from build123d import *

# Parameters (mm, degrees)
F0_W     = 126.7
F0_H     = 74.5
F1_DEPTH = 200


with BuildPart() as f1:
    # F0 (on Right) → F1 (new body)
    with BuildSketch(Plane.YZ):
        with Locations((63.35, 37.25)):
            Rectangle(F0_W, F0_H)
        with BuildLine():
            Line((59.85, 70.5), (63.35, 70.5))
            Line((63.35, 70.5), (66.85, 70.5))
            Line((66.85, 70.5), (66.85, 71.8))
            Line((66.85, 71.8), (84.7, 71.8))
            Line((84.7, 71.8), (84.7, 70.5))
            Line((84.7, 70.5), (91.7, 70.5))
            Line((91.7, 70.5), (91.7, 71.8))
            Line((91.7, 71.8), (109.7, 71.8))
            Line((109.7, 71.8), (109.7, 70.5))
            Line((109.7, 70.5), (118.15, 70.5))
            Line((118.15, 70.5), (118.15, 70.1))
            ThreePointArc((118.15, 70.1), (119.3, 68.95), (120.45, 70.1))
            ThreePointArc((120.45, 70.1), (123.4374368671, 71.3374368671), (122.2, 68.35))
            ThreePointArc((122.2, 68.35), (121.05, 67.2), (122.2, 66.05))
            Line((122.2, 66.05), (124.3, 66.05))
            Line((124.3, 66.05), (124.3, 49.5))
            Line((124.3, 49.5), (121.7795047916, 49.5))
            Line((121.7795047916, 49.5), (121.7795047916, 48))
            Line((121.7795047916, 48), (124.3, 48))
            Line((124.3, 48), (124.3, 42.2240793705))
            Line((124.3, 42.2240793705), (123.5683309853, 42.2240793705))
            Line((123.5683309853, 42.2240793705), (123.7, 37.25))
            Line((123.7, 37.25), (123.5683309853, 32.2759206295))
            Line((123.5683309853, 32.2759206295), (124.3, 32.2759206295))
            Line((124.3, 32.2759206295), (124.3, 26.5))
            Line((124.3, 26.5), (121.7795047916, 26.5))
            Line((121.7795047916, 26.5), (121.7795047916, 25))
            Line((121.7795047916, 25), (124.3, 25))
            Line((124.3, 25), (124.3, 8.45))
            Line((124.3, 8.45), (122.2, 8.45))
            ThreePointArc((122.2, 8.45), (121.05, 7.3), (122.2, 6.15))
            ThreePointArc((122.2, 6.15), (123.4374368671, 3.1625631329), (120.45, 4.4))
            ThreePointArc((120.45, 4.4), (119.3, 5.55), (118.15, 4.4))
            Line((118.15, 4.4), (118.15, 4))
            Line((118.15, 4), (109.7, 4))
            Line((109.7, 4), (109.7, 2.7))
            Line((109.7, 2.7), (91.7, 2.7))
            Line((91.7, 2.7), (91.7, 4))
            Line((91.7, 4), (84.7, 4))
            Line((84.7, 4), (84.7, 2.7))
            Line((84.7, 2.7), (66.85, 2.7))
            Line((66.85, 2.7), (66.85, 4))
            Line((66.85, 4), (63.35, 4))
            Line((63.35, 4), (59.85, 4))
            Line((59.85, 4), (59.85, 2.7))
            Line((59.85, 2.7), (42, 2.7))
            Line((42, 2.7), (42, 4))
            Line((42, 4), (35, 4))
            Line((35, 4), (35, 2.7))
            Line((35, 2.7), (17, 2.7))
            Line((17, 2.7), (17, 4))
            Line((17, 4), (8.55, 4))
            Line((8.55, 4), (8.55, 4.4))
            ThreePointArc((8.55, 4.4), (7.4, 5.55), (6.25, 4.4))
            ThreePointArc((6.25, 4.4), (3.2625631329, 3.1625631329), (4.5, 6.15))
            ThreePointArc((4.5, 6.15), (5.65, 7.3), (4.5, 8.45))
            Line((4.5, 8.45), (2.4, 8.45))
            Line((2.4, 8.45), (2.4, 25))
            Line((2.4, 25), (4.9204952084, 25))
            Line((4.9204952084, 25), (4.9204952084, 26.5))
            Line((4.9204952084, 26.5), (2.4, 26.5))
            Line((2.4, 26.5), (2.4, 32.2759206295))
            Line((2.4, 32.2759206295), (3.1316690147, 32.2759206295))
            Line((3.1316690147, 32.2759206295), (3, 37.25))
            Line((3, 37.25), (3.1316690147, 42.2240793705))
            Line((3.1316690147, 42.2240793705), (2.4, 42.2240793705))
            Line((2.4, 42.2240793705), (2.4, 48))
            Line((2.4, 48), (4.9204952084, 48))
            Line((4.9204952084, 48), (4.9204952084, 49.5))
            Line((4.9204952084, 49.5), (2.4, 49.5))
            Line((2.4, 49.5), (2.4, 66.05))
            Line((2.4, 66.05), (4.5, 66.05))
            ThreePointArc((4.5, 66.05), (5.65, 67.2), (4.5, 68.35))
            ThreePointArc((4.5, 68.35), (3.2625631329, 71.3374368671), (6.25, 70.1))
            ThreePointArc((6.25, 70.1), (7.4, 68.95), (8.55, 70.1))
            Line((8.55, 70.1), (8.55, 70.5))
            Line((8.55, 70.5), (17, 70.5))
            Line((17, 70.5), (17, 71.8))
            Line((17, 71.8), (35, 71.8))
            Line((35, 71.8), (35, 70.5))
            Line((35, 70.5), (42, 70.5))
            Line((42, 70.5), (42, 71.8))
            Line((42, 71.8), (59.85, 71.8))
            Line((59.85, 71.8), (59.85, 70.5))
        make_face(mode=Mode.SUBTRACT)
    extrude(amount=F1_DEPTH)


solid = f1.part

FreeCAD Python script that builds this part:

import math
import FreeCAD as App
import Part
import Sketcher


def add_polygon(sketch, points):
    """Adds a closed chain of lines whose ends are joined by coincident constraints."""
    first, n = sketch.GeometryCount, len(points)
    for a, b in zip(points, points[1:] + points[:1]):
        sketch.addGeometry(Part.LineSegment(App.Vector(*a, 0), App.Vector(*b, 0)), False)
    for i in range(n):
        sketch.addConstraint(Sketcher.Constraint("Coincident", first + i, 2, first + (i + 1) % n, 1))

doc = App.newDocument("Part")
body = doc.addObject("PartDesign::Body", "Body")

sketch1 = body.newObject("Sketcher::SketchObject", "Sketch")
sketch1.AttachmentSupport = (doc.getObject("YZ_Plane"), [""])
sketch1.MapMode = "FlatFace"
add_polygon(sketch1, [(0, 74.5), (0, 0), (126.7, 0), (126.7, 74.5)])
sketch1.addGeometry(Part.LineSegment(App.Vector(59.85, 71.8, 0), App.Vector(59.85, 70.5, 0)), False)
sketch1.addGeometry(Part.LineSegment(App.Vector(59.85, 70.5, 0), App.Vector(66.85, 70.5, 0)), False)
sketch1.addGeometry(Part.LineSegment(App.Vector(66.85, 70.5, 0), App.Vector(66.85, 71.8, 0)), False)
sketch1.addGeometry(Part.LineSegment(App.Vector(66.85, 71.8, 0), App.Vector(84.7, 71.8, 0)), False)
sketch1.addGeometry(Part.LineSegment(App.Vector(84.7, 71.8, 0), App.Vector(84.7, 70.5, 0)), False)
sketch1.addGeometry(Part.LineSegment(App.Vector(84.7, 70.5, 0), App.Vector(91.7, 70.5, 0)), False)
sketch1.addGeometry(Part.LineSegment(App.Vector(91.7, 70.5, 0), App.Vector(91.7, 71.8, 0)), False)
sketch1.addGeometry(Part.LineSegment(App.Vector(91.7, 71.8, 0), App.Vector(109.7, 71.8, 0)), False)
sketch1.addGeometry(Part.LineSegment(App.Vector(109.7, 71.8, 0), App.Vector(109.7, 70.5, 0)), False)
sketch1.addGeometry(Part.LineSegment(App.Vector(109.7, 70.5, 0), App.Vector(118.15, 70.5, 0)), False)
sketch1.addGeometry(Part.LineSegment(App.Vector(118.15, 70.5, 0), App.Vector(118.15, 70.1, 0)), False)
sketch1.addGeometry(Part.ArcOfCircle(Part.Circle(App.Vector(119.3, 70.1, 0), App.Vector(0, 0, 1), 1.15), math.radians(180), math.radians(360)), False)
sketch1.addGeometry(Part.ArcOfCircle(Part.Circle(App.Vector(122.2, 70.1, 0), App.Vector(0, 0, 1), 1.75), math.radians(-90), math.radians(180)), False)
sketch1.addGeometry(Part.ArcOfCircle(Part.Circle(App.Vector(122.2, 67.2, 0), App.Vector(0, 0, 1), 1.15), math.radians(90), math.radians(270)), False)
sketch1.addGeometry(Part.LineSegment(App.Vector(122.2, 66.05, 0), App.Vector(124.3, 66.05, 0)), False)
sketch1.addGeometry(Part.LineSegment(App.Vector(124.3, 66.05, 0), App.Vector(124.3, 49.5, 0)), False)
sketch1.addGeometry(Part.LineSegment(App.Vector(124.3, 49.5, 0), App.Vector(121.78, 49.5, 0)), False)
sketch1.addGeometry(Part.LineSegment(App.Vector(121.78, 49.5, 0), App.Vector(121.78, 48, 0)), False)
sketch1.addGeometry(Part.LineSegment(App.Vector(121.78, 48, 0), App.Vector(124.3, 48, 0)), False)
sketch1.addGeometry(Part.LineSegment(App.Vector(124.3, 48, 0), App.Vector(124.3, 42.22, 0)), False)
sketch1.addGeometry(Part.LineSegment(App.Vector(124.3, 42.22, 0), App.Vector(123.57, 42.22, 0)), False)
sketch1.addGeometry(Part.LineSegment(App.Vector(123.57, 42.22, 0), App.Vector(123.7, 37.25, 0)), False)
sketch1.addGeometry(Part.LineSegment(App.Vector(123.7, 37.25, 0), App.Vector(123.57, 32.28, 0)), False)
sketch1.addGeometry(Part.LineSegment(App.Vector(123.57, 32.28, 0), App.Vector(124.3, 32.28, 0)), False)
sketch1.addGeometry(Part.LineSegment(App.Vector(124.3, 32.28, 0), App.Vector(124.3, 26.5, 0)), False)
sketch1.addGeometry(Part.LineSegment(App.Vector(124.3, 26.5, 0), App.Vector(121.78, 26.5, 0)), False)
sketch1.addGeometry(Part.LineSegment(App.Vector(121.78, 26.5, 0), App.Vector(121.78, 25, 0)), False)
sketch1.addGeometry(Part.LineSegment(App.Vector(121.78, 25, 0), App.Vector(124.3, 25, 0)), False)
sketch1.addGeometry(Part.LineSegment(App.Vector(124.3, 25, 0), App.Vector(124.3, 8.45, 0)), False)
sketch1.addGeometry(Part.LineSegment(App.Vector(124.3, 8.45, 0), App.Vector(122.2, 8.45, 0)), False)
sketch1.addGeometry(Part.ArcOfCircle(Part.Circle(App.Vector(122.2, 7.3, 0), App.Vector(0, 0, 1), 1.15), math.radians(90), math.radians(270)), False)
sketch1.addGeometry(Part.ArcOfCircle(Part.Circle(App.Vector(122.2, 4.4, 0), App.Vector(0, 0, 1), 1.75), math.radians(180), math.radians(450)), False)
sketch1.addGeometry(Part.ArcOfCircle(Part.Circle(App.Vector(119.3, 4.4, 0), App.Vector(0, 0, 1), 1.15), math.radians(0), math.radians(180)), False)
sketch1.addGeometry(Part.LineSegment(App.Vector(118.15, 4.4, 0), App.Vector(118.15, 4, 0)), False)
sketch1.addGeometry(Part.LineSegment(App.Vector(118.15, 4, 0), App.Vector(109.7, 4, 0)), False)
sketch1.addGeometry(Part.LineSegment(App.Vector(109.7, 4, 0), App.Vector(109.7, 2.7, 0)), False)
sketch1.addGeometry(Part.LineSegment(App.Vector(109.7, 2.7, 0), App.Vector(91.7, 2.7, 0)), False)
sketch1.addGeometry(Part.LineSegment(App.Vector(91.7, 2.7, 0), App.Vector(91.7, 4, 0)), False)
sketch1.addGeometry(Part.LineSegment(App.Vector(91.7, 4, 0), App.Vector(84.7, 4, 0)), False)
sketch1.addGeometry(Part.LineSegment(App.Vector(84.7, 4, 0), App.Vector(84.7, 2.7, 0)), False)
sketch1.addGeometry(Part.LineSegment(App.Vector(84.7, 2.7, 0), App.Vector(66.85, 2.7, 0)), False)
sketch1.addGeometry(Part.LineSegment(App.Vector(66.85, 2.7, 0), App.Vector(66.85, 4, 0)), False)
sketch1.addGeometry(Part.LineSegment(App.Vector(66.85, 4, 0), App.Vector(59.85, 4, 0)), False)
sketch1.addGeometry(Part.LineSegment(App.Vector(59.85, 4, 0), App.Vector(59.85, 2.7, 0)), False)
sketch1.addGeometry(Part.LineSegment(App.Vector(59.85, 2.7, 0), App.Vector(42, 2.7, 0)), False)
sketch1.addGeometry(Part.LineSegment(App.Vector(42, 2.7, 0), App.Vector(42, 4, 0)), False)
sketch1.addGeometry(Part.LineSegment(App.Vector(42, 4, 0), App.Vector(35, 4, 0)), False)
sketch1.addGeometry(Part.LineSegment(App.Vector(35, 4, 0), App.Vector(35, 2.7, 0)), False)
sketch1.addGeometry(Part.LineSegment(App.Vector(35, 2.7, 0), App.Vector(17, 2.7, 0)), False)
sketch1.addGeometry(Part.LineSegment(App.Vector(17, 2.7, 0), App.Vector(17, 4, 0)), False)
sketch1.addGeometry(Part.LineSegment(App.Vector(17, 4, 0), App.Vector(8.55, 4, 0)), False)
sketch1.addGeometry(Part.LineSegment(App.Vector(8.55, 4, 0), App.Vector(8.55, 4.4, 0)), False)
sketch1.addGeometry(Part.ArcOfCircle(Part.Circle(App.Vector(7.4, 4.4, 0), App.Vector(0, 0, 1), 1.15), math.radians(0), math.radians(180)), False)
sketch1.addGeometry(Part.ArcOfCircle(Part.Circle(App.Vector(4.5, 4.4, 0), App.Vector(0, 0, 1), 1.75), math.radians(90), math.radians(360)), False)
sketch1.addGeometry(Part.ArcOfCircle(Part.Circle(App.Vector(4.5, 7.3, 0), App.Vector(0, 0, 1), 1.15), math.radians(-90), math.radians(90)), False)
sketch1.addGeometry(Part.LineSegment(App.Vector(4.5, 8.45, 0), App.Vector(2.4, 8.45, 0)), False)
sketch1.addGeometry(Part.LineSegment(App.Vector(2.4, 8.45, 0), App.Vector(2.4, 25, 0)), False)
sketch1.addGeometry(Part.LineSegment(App.Vector(2.4, 25, 0), App.Vector(4.92, 25, 0)), False)
sketch1.addGeometry(Part.LineSegment(App.Vector(4.92, 25, 0), App.Vector(4.92, 26.5, 0)), False)
sketch1.addGeometry(Part.LineSegment(App.Vector(4.92, 26.5, 0), App.Vector(2.4, 26.5, 0)), False)
sketch1.addGeometry(Part.LineSegment(App.Vector(2.4, 26.5, 0), App.Vector(2.4, 32.28, 0)), False)
sketch1.addGeometry(Part.LineSegment(App.Vector(2.4, 32.28, 0), App.Vector(3.13, 32.28, 0)), False)
sketch1.addGeometry(Part.LineSegment(App.Vector(3.13, 32.28, 0), App.Vector(3, 37.25, 0)), False)
sketch1.addGeometry(Part.LineSegment(App.Vector(3, 37.25, 0), App.Vector(3.13, 42.22, 0)), False)
sketch1.addGeometry(Part.LineSegment(App.Vector(3.13, 42.22, 0), App.Vector(2.4, 42.22, 0)), False)
sketch1.addGeometry(Part.LineSegment(App.Vector(2.4, 42.22, 0), App.Vector(2.4, 48, 0)), False)
sketch1.addGeometry(Part.LineSegment(App.Vector(2.4, 48, 0), App.Vector(4.92, 48, 0)), False)
sketch1.addGeometry(Part.LineSegment(App.Vector(4.92, 48, 0), App.Vector(4.92, 49.5, 0)), False)
sketch1.addGeometry(Part.LineSegment(App.Vector(4.92, 49.5, 0), App.Vector(2.4, 49.5, 0)), False)
sketch1.addGeometry(Part.LineSegment(App.Vector(2.4, 49.5, 0), App.Vector(2.4, 66.05, 0)), False)
sketch1.addGeometry(Part.LineSegment(App.Vector(2.4, 66.05, 0), App.Vector(4.5, 66.05, 0)), False)
sketch1.addGeometry(Part.ArcOfCircle(Part.Circle(App.Vector(4.5, 67.2, 0), App.Vector(0, 0, 1), 1.15), math.radians(-90), math.radians(90)), False)
sketch1.addGeometry(Part.ArcOfCircle(Part.Circle(App.Vector(4.5, 70.1, 0), App.Vector(0, 0, 1), 1.75), math.radians(0), math.radians(270)), False)
sketch1.addGeometry(Part.ArcOfCircle(Part.Circle(App.Vector(7.4, 70.1, 0), App.Vector(0, 0, 1), 1.15), math.radians(180), math.radians(360)), False)
sketch1.addGeometry(Part.LineSegment(App.Vector(8.55, 70.1, 0), App.Vector(8.55, 70.5, 0)), False)
sketch1.addGeometry(Part.LineSegment(App.Vector(8.55, 70.5, 0), App.Vector(17, 70.5, 0)), False)
sketch1.addGeometry(Part.LineSegment(App.Vector(17, 70.5, 0), App.Vector(17, 71.8, 0)), False)
sketch1.addGeometry(Part.LineSegment(App.Vector(17, 71.8, 0), App.Vector(35, 71.8, 0)), False)
sketch1.addGeometry(Part.LineSegment(App.Vector(35, 71.8, 0), App.Vector(35, 70.5, 0)), False)
sketch1.addGeometry(Part.LineSegment(App.Vector(35, 70.5, 0), App.Vector(42, 70.5, 0)), False)
sketch1.addGeometry(Part.LineSegment(App.Vector(42, 70.5, 0), App.Vector(42, 71.8, 0)), False)
sketch1.addGeometry(Part.LineSegment(App.Vector(42, 71.8, 0), App.Vector(59.85, 71.8, 0)), False)
sketch1.addConstraint(Sketcher.Constraint("Coincident", 4, 2, 5, 1))
sketch1.addConstraint(Sketcher.Constraint("Coincident", 5, 2, 6, 1))
sketch1.addConstraint(Sketcher.Constraint("Coincident", 6, 2, 7, 1))
sketch1.addConstraint(Sketcher.Constraint("Coincident", 7, 2, 8, 1))
sketch1.addConstraint(Sketcher.Constraint("Coincident", 8, 2, 9, 1))
sketch1.addConstraint(Sketcher.Constraint("Coincident", 9, 2, 10, 1))
sketch1.addConstraint(Sketcher.Constraint("Coincident", 10, 2, 11, 1))
sketch1.addConstraint(Sketcher.Constraint("Coincident", 11, 2, 12, 1))
sketch1.addConstraint(Sketcher.Constraint("Coincident", 12, 2, 13, 1))
sketch1.addConstraint(Sketcher.Constraint("Coincident", 13, 2, 14, 1))
sketch1.addConstraint(Sketcher.Constraint("Tangent", 14, 2, 15, 1))
sketch1.addConstraint(Sketcher.Constraint("Tangent", 15, 2, 16, 2))
sketch1.addConstraint(Sketcher.Constraint("Tangent", 16, 1, 17, 1))
sketch1.addConstraint(Sketcher.Constraint("Tangent", 17, 2, 18, 1))
sketch1.addConstraint(Sketcher.Constraint("Coincident", 18, 2, 19, 1))
sketch1.addConstraint(Sketcher.Constraint("Coincident", 19, 2, 20, 1))
sketch1.addConstraint(Sketcher.Constraint("Coincident", 20, 2, 21, 1))
sketch1.addConstraint(Sketcher.Constraint("Coincident", 21, 2, 22, 1))
sketch1.addConstraint(Sketcher.Constraint("Coincident", 22, 2, 23, 1))
sketch1.addConstraint(Sketcher.Constraint("Coincident", 23, 2, 24, 1))
sketch1.addConstraint(Sketcher.Constraint("Coincident", 24, 2, 25, 1))
sketch1.addConstraint(Sketcher.Constraint("Coincident", 25, 2, 26, 1))
sketch1.addConstraint(Sketcher.Constraint("Coincident", 26, 2, 27, 1))
sketch1.addConstraint(Sketcher.Constraint("Coincident", 27, 2, 28, 1))
sketch1.addConstraint(Sketcher.Constraint("Coincident", 28, 2, 29, 1))
sketch1.addConstraint(Sketcher.Constraint("Coincident", 29, 2, 30, 1))
sketch1.addConstraint(Sketcher.Constraint("Coincident", 30, 2, 31, 1))
sketch1.addConstraint(Sketcher.Constraint("Coincident", 31, 2, 32, 1))
sketch1.addConstraint(Sketcher.Constraint("Coincident", 32, 2, 33, 1))
sketch1.addConstraint(Sketcher.Constraint("Tangent", 33, 2, 34, 1))
sketch1.addConstraint(Sketcher.Constraint("Tangent", 34, 2, 35, 2))
sketch1.addConstraint(Sketcher.Constraint("Tangent", 35, 1, 36, 1))
sketch1.addConstraint(Sketcher.Constraint("Tangent", 36, 2, 37, 1))
sketch1.addConstraint(Sketcher.Constraint("Coincident", 37, 2, 38, 1))
sketch1.addConstraint(Sketcher.Constraint("Coincident", 38, 2, 39, 1))
sketch1.addConstraint(Sketcher.Constraint("Coincident", 39, 2, 40, 1))
sketch1.addConstraint(Sketcher.Constraint("Coincident", 40, 2, 41, 1))
sketch1.addConstraint(Sketcher.Constraint("Coincident", 41, 2, 42, 1))
sketch1.addConstraint(Sketcher.Constraint("Coincident", 42, 2, 43, 1))
sketch1.addConstraint(Sketcher.Constraint("Coincident", 43, 2, 44, 1))
sketch1.addConstraint(Sketcher.Constraint("Coincident", 44, 2, 45, 1))
sketch1.addConstraint(Sketcher.Constraint("Coincident", 45, 2, 46, 1))
sketch1.addConstraint(Sketcher.Constraint("Coincident", 46, 2, 47, 1))
sketch1.addConstraint(Sketcher.Constraint("Coincident", 47, 2, 48, 1))
sketch1.addConstraint(Sketcher.Constraint("Coincident", 48, 2, 49, 1))
sketch1.addConstraint(Sketcher.Constraint("Coincident", 49, 2, 50, 1))
sketch1.addConstraint(Sketcher.Constraint("Coincident", 50, 2, 51, 1))
sketch1.addConstraint(Sketcher.Constraint("Coincident", 51, 2, 52, 1))
sketch1.addConstraint(Sketcher.Constraint("Coincident", 52, 2, 53, 1))
sketch1.addConstraint(Sketcher.Constraint("Coincident", 53, 2, 54, 1))
sketch1.addConstraint(Sketcher.Constraint("Coincident", 54, 2, 55, 1))
sketch1.addConstraint(Sketcher.Constraint("Tangent", 55, 2, 56, 1))
sketch1.addConstraint(Sketcher.Constraint("Tangent", 56, 2, 57, 2))
sketch1.addConstraint(Sketcher.Constraint("Tangent", 57, 1, 58, 1))
sketch1.addConstraint(Sketcher.Constraint("Tangent", 58, 2, 59, 1))
sketch1.addConstraint(Sketcher.Constraint("Coincident", 59, 2, 60, 1))
sketch1.addConstraint(Sketcher.Constraint("Coincident", 60, 2, 61, 1))
sketch1.addConstraint(Sketcher.Constraint("Coincident", 61, 2, 62, 1))
sketch1.addConstraint(Sketcher.Constraint("Coincident", 62, 2, 63, 1))
sketch1.addConstraint(Sketcher.Constraint("Coincident", 63, 2, 64, 1))
sketch1.addConstraint(Sketcher.Constraint("Coincident", 64, 2, 65, 1))
sketch1.addConstraint(Sketcher.Constraint("Coincident", 65, 2, 66, 1))
sketch1.addConstraint(Sketcher.Constraint("Coincident", 66, 2, 67, 1))
sketch1.addConstraint(Sketcher.Constraint("Coincident", 67, 2, 68, 1))
sketch1.addConstraint(Sketcher.Constraint("Coincident", 68, 2, 69, 1))
sketch1.addConstraint(Sketcher.Constraint("Coincident", 69, 2, 70, 1))
sketch1.addConstraint(Sketcher.Constraint("Coincident", 70, 2, 71, 1))
sketch1.addConstraint(Sketcher.Constraint("Coincident", 71, 2, 72, 1))
sketch1.addConstraint(Sketcher.Constraint("Coincident", 72, 2, 73, 1))
sketch1.addConstraint(Sketcher.Constraint("Coincident", 73, 2, 74, 1))
sketch1.addConstraint(Sketcher.Constraint("Tangent", 74, 2, 75, 1))
sketch1.addConstraint(Sketcher.Constraint("Tangent", 75, 2, 76, 2))
sketch1.addConstraint(Sketcher.Constraint("Tangent", 76, 1, 77, 1))
sketch1.addConstraint(Sketcher.Constraint("Tangent", 77, 2, 78, 1))
sketch1.addConstraint(Sketcher.Constraint("Coincident", 78, 2, 79, 1))
sketch1.addConstraint(Sketcher.Constraint("Coincident", 79, 2, 80, 1))
sketch1.addConstraint(Sketcher.Constraint("Coincident", 80, 2, 81, 1))
sketch1.addConstraint(Sketcher.Constraint("Coincident", 81, 2, 82, 1))
sketch1.addConstraint(Sketcher.Constraint("Coincident", 82, 2, 83, 1))
sketch1.addConstraint(Sketcher.Constraint("Coincident", 83, 2, 84, 1))
sketch1.addConstraint(Sketcher.Constraint("Coincident", 84, 2, 85, 1))
sketch1.addConstraint(Sketcher.Constraint("Coincident", 85, 2, 4, 1))
sketch1.addConstraint(Sketcher.Constraint("Vertical", 0))
sketch1.addConstraint(Sketcher.Constraint("Horizontal", 1))
sketch1.addConstraint(Sketcher.Constraint("Vertical", 2))
sketch1.addConstraint(Sketcher.Constraint("Horizontal", 3))
sketch1.addConstraint(Sketcher.Constraint("Vertical", 4))
sketch1.addConstraint(Sketcher.Constraint("Horizontal", 5))
sketch1.addConstraint(Sketcher.Constraint("Vertical", 6))
sketch1.addConstraint(Sketcher.Constraint("Horizontal", 7))
sketch1.addConstraint(Sketcher.Constraint("Vertical", 8))
sketch1.addConstraint(Sketcher.Constraint("Horizontal", 9))
sketch1.addConstraint(Sketcher.Constraint("Vertical", 10))
sketch1.addConstraint(Sketcher.Constraint("Horizontal", 11))
sketch1.addConstraint(Sketcher.Constraint("Vertical", 12))
sketch1.addConstraint(Sketcher.Constraint("Horizontal", 13))
sketch1.addConstraint(Sketcher.Constraint("Vertical", 14))
sketch1.addConstraint(Sketcher.Constraint("Horizontal", 18))
sketch1.addConstraint(Sketcher.Constraint("Vertical", 19))
sketch1.addConstraint(Sketcher.Constraint("Horizontal", 20))
sketch1.addConstraint(Sketcher.Constraint("Vertical", 21))
sketch1.addConstraint(Sketcher.Constraint("Horizontal", 22))
sketch1.addConstraint(Sketcher.Constraint("Vertical", 23))
sketch1.addConstraint(Sketcher.Constraint("Horizontal", 24))
sketch1.addConstraint(Sketcher.Constraint("Horizontal", 27))
sketch1.addConstraint(Sketcher.Constraint("Vertical", 28))
sketch1.addConstraint(Sketcher.Constraint("Horizontal", 29))
sketch1.addConstraint(Sketcher.Constraint("Vertical", 30))
sketch1.addConstraint(Sketcher.Constraint("Horizontal", 31))
sketch1.addConstraint(Sketcher.Constraint("Vertical", 32))
sketch1.addConstraint(Sketcher.Constraint("Horizontal", 33))
sketch1.addConstraint(Sketcher.Constraint("Vertical", 37))
sketch1.addConstraint(Sketcher.Constraint("Horizontal", 38))
sketch1.addConstraint(Sketcher.Constraint("Vertical", 39))
sketch1.addConstraint(Sketcher.Constraint("Horizontal", 40))
sketch1.addConstraint(Sketcher.Constraint("Vertical", 41))
sketch1.addConstraint(Sketcher.Constraint("Horizontal", 42))
sketch1.addConstraint(Sketcher.Constraint("Vertical", 43))
sketch1.addConstraint(Sketcher.Constraint("Horizontal", 44))
sketch1.addConstraint(Sketcher.Constraint("Vertical", 45))
sketch1.addConstraint(Sketcher.Constraint("Horizontal", 46))
sketch1.addConstraint(Sketcher.Constraint("Vertical", 47))
sketch1.addConstraint(Sketcher.Constraint("Horizontal", 48))
sketch1.addConstraint(Sketcher.Constraint("Vertical", 49))
sketch1.addConstraint(Sketcher.Constraint("Horizontal", 50))
sketch1.addConstraint(Sketcher.Constraint("Vertical", 51))
sketch1.addConstraint(Sketcher.Constraint("Horizontal", 52))
sketch1.addConstraint(Sketcher.Constraint("Vertical", 53))
sketch1.addConstraint(Sketcher.Constraint("Horizontal", 54))
sketch1.addConstraint(Sketcher.Constraint("Vertical", 55))
sketch1.addConstraint(Sketcher.Constraint("Horizontal", 59))
sketch1.addConstraint(Sketcher.Constraint("Vertical", 60))
sketch1.addConstraint(Sketcher.Constraint("Horizontal", 61))
sketch1.addConstraint(Sketcher.Constraint("Vertical", 62))
sketch1.addConstraint(Sketcher.Constraint("Horizontal", 63))
sketch1.addConstraint(Sketcher.Constraint("Vertical", 64))
sketch1.addConstraint(Sketcher.Constraint("Horizontal", 65))
sketch1.addConstraint(Sketcher.Constraint("Horizontal", 68))
sketch1.addConstraint(Sketcher.Constraint("Vertical", 69))
sketch1.addConstraint(Sketcher.Constraint("Horizontal", 70))
sketch1.addConstraint(Sketcher.Constraint("Vertical", 71))
sketch1.addConstraint(Sketcher.Constraint("Horizontal", 72))
sketch1.addConstraint(Sketcher.Constraint("Vertical", 73))
sketch1.addConstraint(Sketcher.Constraint("Horizontal", 74))
sketch1.addConstraint(Sketcher.Constraint("Vertical", 78))
sketch1.addConstraint(Sketcher.Constraint("Horizontal", 79))
sketch1.addConstraint(Sketcher.Constraint("Vertical", 80))
sketch1.addConstraint(Sketcher.Constraint("Horizontal", 81))
sketch1.addConstraint(Sketcher.Constraint("Vertical", 82))
sketch1.addConstraint(Sketcher.Constraint("Horizontal", 83))
sketch1.addConstraint(Sketcher.Constraint("Vertical", 84))
sketch1.addConstraint(Sketcher.Constraint("Horizontal", 85))
sketch1.addConstraint(Sketcher.Constraint("Coincident", 0, 2, -1, 1))
sketch1.addConstraint(Sketcher.Constraint("Equal", 15, 17))
sketch1.addConstraint(Sketcher.Constraint("Equal", 17, 34))
sketch1.addConstraint(Sketcher.Constraint("Equal", 16, 35))
sketch1.addConstraint(Sketcher.Constraint("Equal", 34, 36))
sketch1.addConstraint(Sketcher.Constraint("Equal", 36, 56))
sketch1.addConstraint(Sketcher.Constraint("Equal", 35, 57))
sketch1.addConstraint(Sketcher.Constraint("Equal", 56, 58))
sketch1.addConstraint(Sketcher.Constraint("Equal", 58, 75))
sketch1.addConstraint(Sketcher.Constraint("Equal", 57, 76))
sketch1.addConstraint(Sketcher.Constraint("Equal", 75, 77))
sketch1.addConstraint(Sketcher.Constraint("Parallel", 25, 66))
sketch1.addConstraint(Sketcher.Constraint("Parallel", 26, 67))
sketch1.addConstraint(Sketcher.Constraint("Horizontal", 15, 3, 16, 3))
sketch1.addConstraint(Sketcher.Constraint("Horizontal", 35, 3, 36, 3))
sketch1.addConstraint(Sketcher.Constraint("Horizontal", 36, 3, 56, 3))
sketch1.addConstraint(Sketcher.Constraint("Horizontal", 56, 3, 57, 3))
sketch1.addConstraint(Sketcher.Constraint("Horizontal", 17, 3, 75, 3))
sketch1.addConstraint(Sketcher.Constraint("Horizontal", 76, 3, 77, 3))
sketch1.addConstraint(Sketcher.Constraint("Horizontal", 5, 2, 8, 2))
sketch1.addConstraint(Sketcher.Constraint("Horizontal", 7, 2, 10, 2))
sketch1.addConstraint(Sketcher.Constraint("Horizontal", 9, 2, 12, 2))
sketch1.addConstraint(Sketcher.Constraint("Horizontal", 38, 2, 41, 2))
sketch1.addConstraint(Sketcher.Constraint("Horizontal", 40, 2, 43, 2))
sketch1.addConstraint(Sketcher.Constraint("Horizontal", 42, 2, 45, 2))
sketch1.addConstraint(Sketcher.Constraint("Horizontal", 44, 2, 47, 2))
sketch1.addConstraint(Sketcher.Constraint("Horizontal", 46, 2, 49, 2))
sketch1.addConstraint(Sketcher.Constraint("Horizontal", 48, 2, 51, 2))
sketch1.addConstraint(Sketcher.Constraint("Horizontal", 50, 2, 53, 2))
sketch1.addConstraint(Sketcher.Constraint("Horizontal", 31, 2, 60, 2))
sketch1.addConstraint(Sketcher.Constraint("Horizontal", 29, 2, 62, 2))
sketch1.addConstraint(Sketcher.Constraint("Horizontal", 27, 2, 64, 2))
sketch1.addConstraint(Sketcher.Constraint("Horizontal", 25, 2, 66, 2))
sketch1.addConstraint(Sketcher.Constraint("Horizontal", 24, 2, 67, 2))
sketch1.addConstraint(Sketcher.Constraint("Horizontal", 22, 2, 69, 2))
sketch1.addConstraint(Sketcher.Constraint("Horizontal", 20, 2, 71, 2))
sketch1.addConstraint(Sketcher.Constraint("Horizontal", 13, 2, 78, 2))
sketch1.addConstraint(Sketcher.Constraint("Horizontal", 11, 2, 80, 2))
sketch1.addConstraint(Sketcher.Constraint("Horizontal", 79, 2, 82, 2))
sketch1.addConstraint(Sketcher.Constraint("Horizontal", 81, 2, 84, 2))
sketch1.addConstraint(Sketcher.Constraint("Vertical", 16, 3, 17, 3))
sketch1.addConstraint(Sketcher.Constraint("Vertical", 17, 3, 34, 3))
sketch1.addConstraint(Sketcher.Constraint("Vertical", 34, 3, 35, 3))
sketch1.addConstraint(Sketcher.Constraint("Vertical", 57, 3, 58, 3))
sketch1.addConstraint(Sketcher.Constraint("Vertical", 58, 3, 75, 3))
sketch1.addConstraint(Sketcher.Constraint("Vertical", 75, 3, 76, 3))
sketch1.addConstraint(Sketcher.Constraint("Vertical", 19, 2, 22, 2))
sketch1.addConstraint(Sketcher.Constraint("Vertical", 24, 2, 26, 2))
sketch1.addConstraint(Sketcher.Constraint("Vertical", 23, 2, 27, 2))
sketch1.addConstraint(Sketcher.Constraint("Vertical", 21, 2, 29, 2))
sketch1.addConstraint(Sketcher.Constraint("Vertical", 28, 2, 31, 2))
sketch1.addConstraint(Sketcher.Constraint("Vertical", 12, 2, 38, 2))
sketch1.addConstraint(Sketcher.Constraint("Vertical", 10, 2, 40, 2))
sketch1.addConstraint(Sketcher.Constraint("Vertical", 8, 2, 42, 2))
sketch1.addConstraint(Sketcher.Constraint("Vertical", 6, 2, 44, 2))
sketch1.addConstraint(Sketcher.Constraint("Vertical", 4, 2, 46, 2))
sketch1.addConstraint(Sketcher.Constraint("Vertical", 60, 2, 63, 2))
sketch1.addConstraint(Sketcher.Constraint("Vertical", 65, 2, 67, 2))
sketch1.addConstraint(Sketcher.Constraint("Vertical", 64, 2, 68, 2))
sketch1.addConstraint(Sketcher.Constraint("Vertical", 62, 2, 70, 2))
sketch1.addConstraint(Sketcher.Constraint("Vertical", 69, 2, 72, 2))
sketch1.addConstraint(Sketcher.Constraint("Vertical", 53, 2, 79, 2))
sketch1.addConstraint(Sketcher.Constraint("Vertical", 51, 2, 81, 2))
sketch1.addConstraint(Sketcher.Constraint("Vertical", 49, 2, 83, 2))
sketch1.addConstraint(Sketcher.Constraint("Equal", 5, 9))
sketch1.addConstraint(Sketcher.Constraint("Equal", 44, 48))
sketch1.addConstraint(Sketcher.Constraint("Equal", 46, 50))
sketch1.addConstraint(Sketcher.Constraint("Equal", 40, 52))
sketch1.addConstraint(Sketcher.Constraint("Equal", 38, 54))
sketch1.addConstraint(Sketcher.Constraint("Equal", 33, 59))
sketch1.addConstraint(Sketcher.Constraint("Equal", 31, 61))
sketch1.addConstraint(Sketcher.Constraint("Equal", 27, 65))
sketch1.addConstraint(Sketcher.Constraint("Equal", 23, 28))
sketch1.addConstraint(Sketcher.Constraint("Equal", 21, 30))
sketch1.addConstraint(Sketcher.Constraint("Equal", 19, 32))
sketch1.addConstraint(Sketcher.Constraint("Equal", 14, 37))
sketch1.addConstraint(Sketcher.Constraint("Equal", 12, 39))
sketch1.addConstraint(Sketcher.Constraint("DistanceX", 5, 1, 5, 2, 7.0))
sketch1.addConstraint(Sketcher.Constraint("DistanceX", 11, 1, 11, 2, 18.0))
sketch1.addConstraint(Sketcher.Constraint("Radius", 15, 1.15))
sketch1.addConstraint(Sketcher.Constraint("Radius", 16, 1.75))
sketch1.addConstraint(Sketcher.Constraint("DistanceX", 1, 1, 1, 2, 126.7))
sketch1.addConstraint(Sketcher.Constraint("DistanceX", 18, 1, 18, 2, 2.1))
sketch1.addConstraint(Sketcher.Constraint("DistanceY", 0, 2, 0, 1, 74.5))
sketch1.addConstraint(Sketcher.Constraint("DistanceY", 4, 2, 4, 1, 1.3))
sketch1.addConstraint(Sketcher.Constraint("DistanceY", 14, 2, 14, 1, 0.4))
sketch1.addConstraint(Sketcher.Constraint("DistanceY", 21, 2, 21, 1, 1.5))
sketch1.addConstraint(Sketcher.Constraint("DistanceY", -1, 1, 21, 2, 48.0))
sketch1.addConstraint(Sketcher.Constraint("DistanceY", -1, 1, 30, 2, 25.0))
sketch1.addConstraint(Sketcher.Constraint("DistanceY", -1, 1, 37, 2, 4.0))
sketch1.addConstraint(Sketcher.Constraint("DistanceX", -1, 1, 48, 2, 42.0))
sketch1.addConstraint(Sketcher.Constraint("DistanceX", -1, 1, 66, 2, 3.0))
sketch1.addConstraint(Sketcher.Constraint("DistanceX", 7, 1, 7, 2, 17.85))
sketch1.addConstraint(Sketcher.Constraint("DistanceX", 13, 1, 13, 2, 8.45))
sketch1.addConstraint(Sketcher.Constraint("DistanceX", 24, 2, 24, 1, 0.731669))
sketch1.addConstraint(Sketcher.Constraint("DistanceY", 23, 2, 23, 1, 5.775921))
sketch1.addConstraint(Sketcher.Constraint("DistanceX", 20, 2, 20, 1, 2.520495))
pad1 = body.newObject("PartDesign::Pad", "Pad")
pad1.Profile = sketch1
pad1.Length = 200

doc.recompute()
